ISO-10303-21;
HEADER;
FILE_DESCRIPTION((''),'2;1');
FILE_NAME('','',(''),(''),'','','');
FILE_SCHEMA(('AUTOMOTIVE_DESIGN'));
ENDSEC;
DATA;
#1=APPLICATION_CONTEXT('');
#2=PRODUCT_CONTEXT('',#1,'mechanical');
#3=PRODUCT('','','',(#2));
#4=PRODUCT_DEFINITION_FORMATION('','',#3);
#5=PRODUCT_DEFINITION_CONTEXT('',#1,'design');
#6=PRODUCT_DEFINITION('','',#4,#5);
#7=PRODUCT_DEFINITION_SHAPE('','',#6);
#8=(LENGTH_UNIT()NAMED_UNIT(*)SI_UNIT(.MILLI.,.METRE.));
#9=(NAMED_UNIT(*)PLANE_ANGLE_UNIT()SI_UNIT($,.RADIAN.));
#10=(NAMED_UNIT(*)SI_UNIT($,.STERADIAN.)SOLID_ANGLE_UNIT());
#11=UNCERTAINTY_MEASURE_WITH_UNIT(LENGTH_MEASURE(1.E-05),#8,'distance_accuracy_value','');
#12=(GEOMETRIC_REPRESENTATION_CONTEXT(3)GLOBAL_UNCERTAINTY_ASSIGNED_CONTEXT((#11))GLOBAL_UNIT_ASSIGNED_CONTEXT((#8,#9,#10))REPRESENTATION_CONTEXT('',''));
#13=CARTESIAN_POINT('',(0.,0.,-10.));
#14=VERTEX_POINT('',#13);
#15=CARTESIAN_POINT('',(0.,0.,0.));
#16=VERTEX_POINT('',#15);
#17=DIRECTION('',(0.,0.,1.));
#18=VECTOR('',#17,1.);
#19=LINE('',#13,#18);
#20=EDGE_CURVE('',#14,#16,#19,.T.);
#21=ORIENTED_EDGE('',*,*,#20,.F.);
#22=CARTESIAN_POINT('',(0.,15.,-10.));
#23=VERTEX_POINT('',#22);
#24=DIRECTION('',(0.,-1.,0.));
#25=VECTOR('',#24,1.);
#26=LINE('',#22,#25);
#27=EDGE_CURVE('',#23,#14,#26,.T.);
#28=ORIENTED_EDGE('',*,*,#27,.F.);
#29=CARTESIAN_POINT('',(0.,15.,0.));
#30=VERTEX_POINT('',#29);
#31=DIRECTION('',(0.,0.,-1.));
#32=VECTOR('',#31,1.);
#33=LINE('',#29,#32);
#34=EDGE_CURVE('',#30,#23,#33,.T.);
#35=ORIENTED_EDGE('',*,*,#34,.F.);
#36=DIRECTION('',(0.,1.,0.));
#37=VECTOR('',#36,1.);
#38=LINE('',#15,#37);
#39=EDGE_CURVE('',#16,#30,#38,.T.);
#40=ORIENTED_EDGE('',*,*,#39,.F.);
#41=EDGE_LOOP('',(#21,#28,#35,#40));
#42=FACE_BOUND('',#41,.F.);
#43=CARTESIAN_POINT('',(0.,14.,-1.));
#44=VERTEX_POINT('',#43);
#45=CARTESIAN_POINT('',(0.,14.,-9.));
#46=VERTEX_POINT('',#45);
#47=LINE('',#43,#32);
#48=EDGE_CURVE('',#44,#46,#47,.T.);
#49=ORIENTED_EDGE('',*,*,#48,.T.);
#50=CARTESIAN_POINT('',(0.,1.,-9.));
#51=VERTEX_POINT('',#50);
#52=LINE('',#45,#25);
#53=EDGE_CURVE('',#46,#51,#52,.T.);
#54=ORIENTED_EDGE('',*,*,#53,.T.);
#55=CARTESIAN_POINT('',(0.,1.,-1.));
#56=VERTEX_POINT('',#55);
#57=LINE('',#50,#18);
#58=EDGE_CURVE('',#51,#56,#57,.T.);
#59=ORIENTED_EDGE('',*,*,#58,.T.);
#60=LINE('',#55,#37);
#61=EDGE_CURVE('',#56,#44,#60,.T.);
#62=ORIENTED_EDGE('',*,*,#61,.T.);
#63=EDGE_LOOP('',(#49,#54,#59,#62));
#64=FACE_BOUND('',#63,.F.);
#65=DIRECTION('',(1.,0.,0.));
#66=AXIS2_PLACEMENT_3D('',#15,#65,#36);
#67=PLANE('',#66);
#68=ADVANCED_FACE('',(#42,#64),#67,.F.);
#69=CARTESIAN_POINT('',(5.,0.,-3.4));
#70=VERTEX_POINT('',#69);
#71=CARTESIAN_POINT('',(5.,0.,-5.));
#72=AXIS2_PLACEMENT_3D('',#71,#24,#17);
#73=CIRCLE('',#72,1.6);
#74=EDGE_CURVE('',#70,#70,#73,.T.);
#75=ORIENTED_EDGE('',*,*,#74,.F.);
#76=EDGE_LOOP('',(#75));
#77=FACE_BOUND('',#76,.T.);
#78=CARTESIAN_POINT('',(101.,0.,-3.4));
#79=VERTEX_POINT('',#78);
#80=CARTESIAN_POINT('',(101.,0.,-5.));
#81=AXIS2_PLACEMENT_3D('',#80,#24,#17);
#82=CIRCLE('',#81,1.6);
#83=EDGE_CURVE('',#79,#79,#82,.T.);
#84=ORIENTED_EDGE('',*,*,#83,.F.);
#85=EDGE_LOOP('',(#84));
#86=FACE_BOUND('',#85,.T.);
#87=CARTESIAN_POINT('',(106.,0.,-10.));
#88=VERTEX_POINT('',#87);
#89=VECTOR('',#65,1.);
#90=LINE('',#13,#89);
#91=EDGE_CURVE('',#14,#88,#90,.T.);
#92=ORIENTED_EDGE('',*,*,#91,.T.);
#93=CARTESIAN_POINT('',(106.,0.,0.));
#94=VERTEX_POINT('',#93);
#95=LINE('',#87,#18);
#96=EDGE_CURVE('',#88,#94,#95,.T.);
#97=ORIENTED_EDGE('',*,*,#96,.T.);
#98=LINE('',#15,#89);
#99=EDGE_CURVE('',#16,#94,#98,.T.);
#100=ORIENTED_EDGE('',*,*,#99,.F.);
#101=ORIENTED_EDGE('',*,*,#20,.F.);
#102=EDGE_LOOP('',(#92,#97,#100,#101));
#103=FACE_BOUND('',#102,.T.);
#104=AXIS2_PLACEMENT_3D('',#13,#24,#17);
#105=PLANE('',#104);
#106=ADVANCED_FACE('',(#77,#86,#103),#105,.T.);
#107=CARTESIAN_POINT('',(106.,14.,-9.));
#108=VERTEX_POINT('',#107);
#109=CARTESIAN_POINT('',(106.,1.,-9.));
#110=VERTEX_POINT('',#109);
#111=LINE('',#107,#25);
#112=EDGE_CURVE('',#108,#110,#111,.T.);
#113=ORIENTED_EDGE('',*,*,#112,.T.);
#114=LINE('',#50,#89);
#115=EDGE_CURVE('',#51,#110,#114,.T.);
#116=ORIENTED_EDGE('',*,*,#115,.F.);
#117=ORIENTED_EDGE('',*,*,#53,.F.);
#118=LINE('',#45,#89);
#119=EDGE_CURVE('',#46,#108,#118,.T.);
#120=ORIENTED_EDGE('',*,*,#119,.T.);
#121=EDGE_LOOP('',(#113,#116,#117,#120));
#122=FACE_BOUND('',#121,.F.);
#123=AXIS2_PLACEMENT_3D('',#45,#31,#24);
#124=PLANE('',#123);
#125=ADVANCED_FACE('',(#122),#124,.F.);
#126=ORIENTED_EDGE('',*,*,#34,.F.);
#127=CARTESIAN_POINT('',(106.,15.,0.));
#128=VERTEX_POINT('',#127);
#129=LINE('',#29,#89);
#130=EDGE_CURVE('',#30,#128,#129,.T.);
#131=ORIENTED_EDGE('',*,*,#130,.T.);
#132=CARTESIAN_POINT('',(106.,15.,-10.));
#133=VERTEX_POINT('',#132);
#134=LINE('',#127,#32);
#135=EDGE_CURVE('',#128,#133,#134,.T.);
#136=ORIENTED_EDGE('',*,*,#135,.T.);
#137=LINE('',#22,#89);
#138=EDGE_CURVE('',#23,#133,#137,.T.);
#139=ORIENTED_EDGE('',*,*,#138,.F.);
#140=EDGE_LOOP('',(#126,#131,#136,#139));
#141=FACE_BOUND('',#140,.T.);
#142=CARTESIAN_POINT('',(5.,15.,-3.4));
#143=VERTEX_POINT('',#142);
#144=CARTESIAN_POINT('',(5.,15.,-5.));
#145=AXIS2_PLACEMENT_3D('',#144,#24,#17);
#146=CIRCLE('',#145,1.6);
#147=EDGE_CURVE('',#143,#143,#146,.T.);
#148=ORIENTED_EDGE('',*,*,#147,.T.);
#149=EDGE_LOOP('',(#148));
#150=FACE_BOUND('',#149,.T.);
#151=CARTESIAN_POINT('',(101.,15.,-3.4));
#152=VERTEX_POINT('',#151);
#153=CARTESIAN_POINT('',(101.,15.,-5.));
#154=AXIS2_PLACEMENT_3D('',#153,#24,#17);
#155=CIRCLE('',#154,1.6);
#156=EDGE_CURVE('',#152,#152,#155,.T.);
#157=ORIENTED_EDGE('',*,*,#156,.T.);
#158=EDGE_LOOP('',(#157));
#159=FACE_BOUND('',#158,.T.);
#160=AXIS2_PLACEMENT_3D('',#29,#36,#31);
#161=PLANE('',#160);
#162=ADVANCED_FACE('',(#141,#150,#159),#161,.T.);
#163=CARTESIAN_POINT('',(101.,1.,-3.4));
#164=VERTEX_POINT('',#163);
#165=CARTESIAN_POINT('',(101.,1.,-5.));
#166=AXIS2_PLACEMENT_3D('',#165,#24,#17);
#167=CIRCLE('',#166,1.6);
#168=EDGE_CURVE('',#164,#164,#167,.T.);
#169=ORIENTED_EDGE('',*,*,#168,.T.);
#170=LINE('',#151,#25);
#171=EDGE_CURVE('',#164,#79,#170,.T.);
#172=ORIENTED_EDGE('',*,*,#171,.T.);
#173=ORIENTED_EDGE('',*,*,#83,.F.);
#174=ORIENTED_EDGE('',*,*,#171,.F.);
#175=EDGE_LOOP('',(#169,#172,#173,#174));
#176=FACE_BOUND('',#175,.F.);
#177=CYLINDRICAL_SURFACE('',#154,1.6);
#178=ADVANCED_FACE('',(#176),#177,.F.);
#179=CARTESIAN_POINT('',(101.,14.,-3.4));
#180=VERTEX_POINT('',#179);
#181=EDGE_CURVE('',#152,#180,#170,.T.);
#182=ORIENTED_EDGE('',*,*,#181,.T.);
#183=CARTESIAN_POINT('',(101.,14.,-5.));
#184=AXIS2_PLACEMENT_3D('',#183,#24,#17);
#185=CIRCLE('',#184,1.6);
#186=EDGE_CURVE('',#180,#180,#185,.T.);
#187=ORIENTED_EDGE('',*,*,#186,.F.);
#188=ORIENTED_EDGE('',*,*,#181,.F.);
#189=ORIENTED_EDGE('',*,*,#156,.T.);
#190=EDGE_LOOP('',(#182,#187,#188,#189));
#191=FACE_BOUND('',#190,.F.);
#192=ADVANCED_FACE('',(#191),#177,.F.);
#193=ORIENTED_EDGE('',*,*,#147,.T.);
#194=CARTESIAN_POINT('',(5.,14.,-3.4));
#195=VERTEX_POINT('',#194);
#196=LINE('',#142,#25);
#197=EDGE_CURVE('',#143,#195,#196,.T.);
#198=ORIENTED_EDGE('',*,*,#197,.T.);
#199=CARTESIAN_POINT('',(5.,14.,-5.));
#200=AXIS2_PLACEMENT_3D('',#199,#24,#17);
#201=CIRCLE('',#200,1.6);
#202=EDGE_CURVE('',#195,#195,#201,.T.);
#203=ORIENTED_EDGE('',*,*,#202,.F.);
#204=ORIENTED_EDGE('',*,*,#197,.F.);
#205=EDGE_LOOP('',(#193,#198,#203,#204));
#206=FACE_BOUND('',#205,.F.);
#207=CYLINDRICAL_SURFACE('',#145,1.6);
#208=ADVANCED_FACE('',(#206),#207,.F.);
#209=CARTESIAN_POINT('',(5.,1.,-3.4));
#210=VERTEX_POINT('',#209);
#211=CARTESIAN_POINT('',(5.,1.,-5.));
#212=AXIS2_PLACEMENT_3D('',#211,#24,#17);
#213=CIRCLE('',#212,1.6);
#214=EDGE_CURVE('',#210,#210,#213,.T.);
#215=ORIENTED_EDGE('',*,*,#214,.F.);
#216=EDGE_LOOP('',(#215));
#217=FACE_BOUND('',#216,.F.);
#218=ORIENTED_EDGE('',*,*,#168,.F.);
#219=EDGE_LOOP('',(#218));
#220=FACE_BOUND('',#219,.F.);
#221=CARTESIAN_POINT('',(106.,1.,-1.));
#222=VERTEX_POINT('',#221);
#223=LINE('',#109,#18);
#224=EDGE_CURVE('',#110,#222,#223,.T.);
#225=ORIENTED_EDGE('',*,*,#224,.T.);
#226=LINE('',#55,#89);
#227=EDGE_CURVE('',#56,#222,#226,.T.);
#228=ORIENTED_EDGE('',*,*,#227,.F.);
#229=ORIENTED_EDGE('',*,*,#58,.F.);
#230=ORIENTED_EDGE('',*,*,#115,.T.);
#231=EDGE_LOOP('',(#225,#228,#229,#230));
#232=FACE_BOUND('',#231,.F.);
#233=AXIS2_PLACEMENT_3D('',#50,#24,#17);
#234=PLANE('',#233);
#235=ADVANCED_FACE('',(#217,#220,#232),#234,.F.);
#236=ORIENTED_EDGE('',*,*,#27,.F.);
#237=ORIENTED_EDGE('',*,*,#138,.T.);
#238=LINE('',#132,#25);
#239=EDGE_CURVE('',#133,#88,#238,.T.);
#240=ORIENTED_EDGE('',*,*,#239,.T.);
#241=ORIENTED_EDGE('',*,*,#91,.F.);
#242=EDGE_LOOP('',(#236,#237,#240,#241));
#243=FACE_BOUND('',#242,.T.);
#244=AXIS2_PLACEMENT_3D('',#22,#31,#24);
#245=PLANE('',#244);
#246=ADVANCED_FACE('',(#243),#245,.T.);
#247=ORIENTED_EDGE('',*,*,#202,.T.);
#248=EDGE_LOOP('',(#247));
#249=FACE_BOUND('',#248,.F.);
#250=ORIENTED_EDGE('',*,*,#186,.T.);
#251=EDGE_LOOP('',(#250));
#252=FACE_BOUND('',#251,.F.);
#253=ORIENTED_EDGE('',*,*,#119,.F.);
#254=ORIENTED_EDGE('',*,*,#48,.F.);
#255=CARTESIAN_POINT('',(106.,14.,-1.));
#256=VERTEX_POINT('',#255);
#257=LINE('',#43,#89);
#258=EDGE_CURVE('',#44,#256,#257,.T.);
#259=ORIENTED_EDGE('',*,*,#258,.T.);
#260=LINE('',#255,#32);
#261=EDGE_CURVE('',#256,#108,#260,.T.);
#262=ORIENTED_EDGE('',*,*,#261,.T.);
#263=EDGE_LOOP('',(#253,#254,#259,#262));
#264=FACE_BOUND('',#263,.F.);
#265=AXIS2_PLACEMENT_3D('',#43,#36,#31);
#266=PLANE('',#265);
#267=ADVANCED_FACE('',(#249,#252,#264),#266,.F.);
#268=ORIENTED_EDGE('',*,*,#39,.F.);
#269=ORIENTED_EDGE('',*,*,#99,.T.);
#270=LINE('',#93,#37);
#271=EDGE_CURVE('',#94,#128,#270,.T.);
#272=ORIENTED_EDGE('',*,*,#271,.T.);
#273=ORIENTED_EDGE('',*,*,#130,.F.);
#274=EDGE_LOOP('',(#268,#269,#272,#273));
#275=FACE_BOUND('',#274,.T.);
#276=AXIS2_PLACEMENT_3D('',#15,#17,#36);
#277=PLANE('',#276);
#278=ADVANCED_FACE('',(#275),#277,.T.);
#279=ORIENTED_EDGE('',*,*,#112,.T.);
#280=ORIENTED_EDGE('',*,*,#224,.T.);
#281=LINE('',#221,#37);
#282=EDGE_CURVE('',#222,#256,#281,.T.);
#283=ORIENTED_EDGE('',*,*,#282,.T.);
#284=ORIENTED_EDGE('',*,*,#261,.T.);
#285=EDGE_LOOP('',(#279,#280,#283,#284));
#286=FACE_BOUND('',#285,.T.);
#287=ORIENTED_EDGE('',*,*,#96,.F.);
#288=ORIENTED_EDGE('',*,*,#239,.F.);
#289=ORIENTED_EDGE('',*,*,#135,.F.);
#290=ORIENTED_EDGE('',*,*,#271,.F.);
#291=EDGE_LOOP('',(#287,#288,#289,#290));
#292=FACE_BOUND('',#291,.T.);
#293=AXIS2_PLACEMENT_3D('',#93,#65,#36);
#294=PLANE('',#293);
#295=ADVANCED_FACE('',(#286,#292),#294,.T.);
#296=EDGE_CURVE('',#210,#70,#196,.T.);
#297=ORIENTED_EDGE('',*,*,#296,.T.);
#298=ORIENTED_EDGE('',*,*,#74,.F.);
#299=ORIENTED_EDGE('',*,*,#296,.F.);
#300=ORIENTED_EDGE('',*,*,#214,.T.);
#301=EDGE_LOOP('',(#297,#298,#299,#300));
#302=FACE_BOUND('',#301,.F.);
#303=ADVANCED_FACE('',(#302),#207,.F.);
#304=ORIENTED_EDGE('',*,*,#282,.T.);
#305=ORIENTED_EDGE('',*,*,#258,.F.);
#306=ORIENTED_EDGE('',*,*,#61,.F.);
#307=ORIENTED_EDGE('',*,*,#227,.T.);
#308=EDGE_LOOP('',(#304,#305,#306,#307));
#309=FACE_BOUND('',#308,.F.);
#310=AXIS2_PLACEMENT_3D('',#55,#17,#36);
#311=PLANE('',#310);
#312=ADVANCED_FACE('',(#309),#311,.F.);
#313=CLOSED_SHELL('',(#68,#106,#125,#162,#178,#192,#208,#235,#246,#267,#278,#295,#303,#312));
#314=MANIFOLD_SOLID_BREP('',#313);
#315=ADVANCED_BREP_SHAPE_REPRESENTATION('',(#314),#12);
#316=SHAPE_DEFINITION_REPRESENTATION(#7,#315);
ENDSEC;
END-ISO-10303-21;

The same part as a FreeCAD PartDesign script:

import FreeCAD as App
import Part
import Sketcher
from FreeCAD import Vector

doc = App.newDocument("Part")
body = doc.addObject("PartDesign::Body", "Body")

# Sketch on YZ plane
sketch1 = body.newObject("Sketcher::SketchObject", "Sketch")
sketch1.AttachmentSupport = (doc.getObject("YZ_Plane"), [""])
sketch1.MapMode = "FlatFace"
sketch1.addGeometry([
    Part.LineSegment(Vector(15, 0, 0), Vector(0, 0, 0)),  # 0
    Part.LineSegment(Vector(0, 0, 0), Vector(0, -10, 0)),  # 1
    Part.LineSegment(Vector(0, -10, 0), Vector(15, -10, 0)),  # 2
    Part.LineSegment(Vector(15, -10, 0), Vector(15, 0, 0)),  # 3
    Part.LineSegment(Vector(1, -9, 0), Vector(1, -1, 0)),  # 4
    Part.LineSegment(Vector(1, -1, 0), Vector(14, -1, 0)),  # 5
    Part.LineSegment(Vector(14, -1, 0), Vector(14, -9, 0)),  # 6
    Part.LineSegment(Vector(14, -9, 0), Vector(1, -9, 0)),  # 7
], False)
sketch1.addConstraint([
    Sketcher.Constraint("Coincident", 0, 2, 1, 1),
    Sketcher.Constraint("Coincident", 1, 2, 2, 1),
    Sketcher.Constraint("Coincident", 2, 2, 3, 1),
    Sketcher.Constraint("Coincident", 3, 2, 0, 1),
    Sketcher.Constraint("Coincident", 4, 2, 5, 1),
    Sketcher.Constraint("Coincident", 5, 2, 6, 1),
    Sketcher.Constraint("Coincident", 6, 2, 7, 1),
    Sketcher.Constraint("Coincident", 7, 2, 4, 1),
    Sketcher.Constraint("Horizontal", 0),
    Sketcher.Constraint("Vertical", 1),
    Sketcher.Constraint("Horizontal", 2),
    Sketcher.Constraint("Vertical", 3),
    Sketcher.Constraint("Vertical", 4),
    Sketcher.Constraint("Horizontal", 5),
    Sketcher.Constraint("Vertical", 6),
    Sketcher.Constraint("Horizontal", 7),
    Sketcher.Constraint("Coincident", 0, 2, -1, 1),
    Sketcher.Constraint("DistanceX", 0, 2, 0, 1, 15.0),
    Sketcher.Constraint("DistanceX", 5, 1, 5, 2, 13.0),
    Sketcher.Constraint("DistanceY", 1, 2, 1, 1, 10.0),
    Sketcher.Constraint("DistanceY", 4, 1, 4, 2, 8.0),
    Sketcher.Constraint("DistanceX", -1, 1, 4, 2, 1.0),
    Sketcher.Constraint("DistanceY", 4, 2, -1, 1, 1.0),
])
pad1 = body.newObject("PartDesign::Pad", "Pad")
pad1.Profile = sketch1
pad1.Length = 106

# Sketch on XZ plane
sketch2 = body.newObject("Sketcher::SketchObject", "Sketch001")
sketch2.AttachmentSupport = (doc.getObject("XZ_Plane"), [""])
sketch2.MapMode = "FlatFace"
sketch2.AttachmentOffset = App.Placement(Vector(0, 0, -15), App.Rotation())
sketch2.addGeometry([
    Part.Circle(Vector(5, -5, 0), Vector(0, 0, 1), 1.6),
    Part.Circle(Vector(101, -5, 0), Vector(0, 0, 1), 1.6),
], False)
sketch2.addConstraint([
    Sketcher.Constraint("Equal", 0, 1),
    Sketcher.Constraint("Horizontal", 0, 3, 1, 3),
    Sketcher.Constraint("Diameter", 0, 3.2),
    Sketcher.Constraint("DistanceX", -1, 1, 0, 3, 5.0),
    Sketcher.Constraint("DistanceY", 0, 3, -1, 1, 5.0),
    Sketcher.Constraint("DistanceX", -1, 1, 1, 3, 101.0),
])
doc.recompute()
hole = body.newObject("PartDesign::Hole", "Hole")
hole.Profile = sketch2
hole.ThreadType = "None"
hole.Diameter = 3.2
hole.DepthType = "ThroughAll"
hole.Reversed = True

doc.recompute()
